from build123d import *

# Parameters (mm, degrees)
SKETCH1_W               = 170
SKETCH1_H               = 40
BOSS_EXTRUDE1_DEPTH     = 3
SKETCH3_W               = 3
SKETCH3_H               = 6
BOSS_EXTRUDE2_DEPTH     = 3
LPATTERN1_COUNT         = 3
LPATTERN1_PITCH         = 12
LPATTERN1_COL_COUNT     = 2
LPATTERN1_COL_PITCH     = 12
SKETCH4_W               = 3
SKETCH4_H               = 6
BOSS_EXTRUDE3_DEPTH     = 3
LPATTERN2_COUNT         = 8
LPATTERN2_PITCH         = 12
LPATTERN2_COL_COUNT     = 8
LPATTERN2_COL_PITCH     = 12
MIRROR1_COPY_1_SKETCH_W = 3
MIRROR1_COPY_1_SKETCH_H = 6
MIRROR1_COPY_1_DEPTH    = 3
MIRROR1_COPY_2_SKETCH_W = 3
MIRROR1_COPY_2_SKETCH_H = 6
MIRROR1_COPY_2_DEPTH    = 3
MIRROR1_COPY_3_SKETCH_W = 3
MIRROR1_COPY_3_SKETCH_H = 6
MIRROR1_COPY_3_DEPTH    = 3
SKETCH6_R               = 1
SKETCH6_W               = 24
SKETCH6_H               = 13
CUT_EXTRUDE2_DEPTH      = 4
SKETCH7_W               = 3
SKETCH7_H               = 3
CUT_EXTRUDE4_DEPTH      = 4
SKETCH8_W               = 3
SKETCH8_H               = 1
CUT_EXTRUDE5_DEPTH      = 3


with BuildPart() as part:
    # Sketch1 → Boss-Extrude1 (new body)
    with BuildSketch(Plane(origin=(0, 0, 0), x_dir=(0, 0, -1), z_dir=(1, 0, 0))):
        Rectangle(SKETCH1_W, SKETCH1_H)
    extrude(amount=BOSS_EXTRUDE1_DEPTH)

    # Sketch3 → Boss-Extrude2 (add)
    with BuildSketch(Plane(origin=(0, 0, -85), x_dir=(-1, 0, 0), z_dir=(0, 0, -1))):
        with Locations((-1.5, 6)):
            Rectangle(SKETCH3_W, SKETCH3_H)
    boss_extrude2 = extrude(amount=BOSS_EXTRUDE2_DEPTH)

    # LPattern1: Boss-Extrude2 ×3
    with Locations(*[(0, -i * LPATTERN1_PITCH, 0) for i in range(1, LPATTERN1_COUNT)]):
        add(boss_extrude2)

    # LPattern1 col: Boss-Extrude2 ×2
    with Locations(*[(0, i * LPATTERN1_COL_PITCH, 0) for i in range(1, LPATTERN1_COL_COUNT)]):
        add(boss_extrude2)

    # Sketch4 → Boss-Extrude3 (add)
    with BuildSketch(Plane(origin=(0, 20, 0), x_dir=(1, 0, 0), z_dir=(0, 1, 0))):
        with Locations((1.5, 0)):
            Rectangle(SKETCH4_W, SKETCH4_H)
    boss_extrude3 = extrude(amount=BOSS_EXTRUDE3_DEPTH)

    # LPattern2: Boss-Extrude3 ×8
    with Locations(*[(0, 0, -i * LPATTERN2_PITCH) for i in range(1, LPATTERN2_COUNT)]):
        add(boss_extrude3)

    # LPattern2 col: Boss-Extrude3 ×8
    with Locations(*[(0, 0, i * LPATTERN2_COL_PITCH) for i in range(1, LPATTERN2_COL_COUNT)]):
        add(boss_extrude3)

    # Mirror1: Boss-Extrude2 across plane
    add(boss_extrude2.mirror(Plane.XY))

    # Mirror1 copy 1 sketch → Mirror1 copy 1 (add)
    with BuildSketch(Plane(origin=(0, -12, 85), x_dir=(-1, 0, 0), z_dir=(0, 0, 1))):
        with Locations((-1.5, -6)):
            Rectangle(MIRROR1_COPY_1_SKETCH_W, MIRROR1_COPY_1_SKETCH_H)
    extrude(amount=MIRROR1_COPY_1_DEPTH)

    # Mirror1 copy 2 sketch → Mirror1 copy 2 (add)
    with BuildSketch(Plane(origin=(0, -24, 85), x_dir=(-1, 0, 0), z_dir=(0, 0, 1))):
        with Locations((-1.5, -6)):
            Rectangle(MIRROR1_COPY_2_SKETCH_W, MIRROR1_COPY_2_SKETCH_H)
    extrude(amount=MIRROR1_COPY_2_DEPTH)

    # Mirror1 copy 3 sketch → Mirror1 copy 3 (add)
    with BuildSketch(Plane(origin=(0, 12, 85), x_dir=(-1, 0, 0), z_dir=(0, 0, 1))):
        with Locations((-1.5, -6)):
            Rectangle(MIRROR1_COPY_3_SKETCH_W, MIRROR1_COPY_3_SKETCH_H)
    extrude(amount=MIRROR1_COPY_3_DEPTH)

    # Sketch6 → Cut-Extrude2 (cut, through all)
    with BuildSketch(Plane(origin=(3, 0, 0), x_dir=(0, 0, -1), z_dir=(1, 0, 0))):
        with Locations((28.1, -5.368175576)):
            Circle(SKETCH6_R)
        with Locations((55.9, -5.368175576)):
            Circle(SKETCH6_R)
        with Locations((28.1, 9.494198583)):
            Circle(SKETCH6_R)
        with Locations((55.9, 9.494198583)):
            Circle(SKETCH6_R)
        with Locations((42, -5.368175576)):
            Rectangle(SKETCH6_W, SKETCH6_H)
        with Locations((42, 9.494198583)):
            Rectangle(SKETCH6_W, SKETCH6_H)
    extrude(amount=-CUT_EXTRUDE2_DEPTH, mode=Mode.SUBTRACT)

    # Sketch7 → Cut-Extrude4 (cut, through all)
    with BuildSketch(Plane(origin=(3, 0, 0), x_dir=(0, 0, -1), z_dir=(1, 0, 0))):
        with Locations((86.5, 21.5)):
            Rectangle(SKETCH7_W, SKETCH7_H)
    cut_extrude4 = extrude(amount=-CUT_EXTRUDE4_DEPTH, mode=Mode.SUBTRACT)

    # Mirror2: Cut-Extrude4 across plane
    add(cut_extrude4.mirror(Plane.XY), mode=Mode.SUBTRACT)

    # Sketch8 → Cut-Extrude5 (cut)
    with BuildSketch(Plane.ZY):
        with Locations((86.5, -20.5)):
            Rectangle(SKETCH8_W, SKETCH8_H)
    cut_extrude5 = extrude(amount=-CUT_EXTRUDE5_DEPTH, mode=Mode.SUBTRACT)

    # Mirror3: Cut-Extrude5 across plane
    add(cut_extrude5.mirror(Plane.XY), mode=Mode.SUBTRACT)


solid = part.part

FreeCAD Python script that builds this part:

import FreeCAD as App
import Part
import Sketcher


def add_polygon(sketch, points):
    """Adds a closed chain of lines whose ends are joined by coincident constraints."""
    first, n = sketch.GeometryCount, len(points)
    for a, b in zip(points, points[1:] + points[:1]):
        sketch.addGeometry(Part.LineSegment(App.Vector(*a, 0), App.Vector(*b, 0)), False)
    for i in range(n):
        sketch.addConstraint(Sketcher.Constraint("Coincident", first + i, 2, first + (i + 1) % n, 1))

doc = App.newDocument("Part")
body = doc.addObject("PartDesign::Body", "Body")

sketch1 = body.newObject("Sketcher::SketchObject", "Sketch")
sketch1.AttachmentSupport = (doc.getObject("YZ_Plane"), [""])
sketch1.MapMode = "FlatFace"
add_polygon(sketch1, [(20, 85), (-20, 85), (-20, -85), (20, -85)])
sketch1.addConstraint(Sketcher.Constraint("Horizontal", 0))
sketch1.addConstraint(Sketcher.Constraint("Vertical", 1))
sketch1.addConstraint(Sketcher.Constraint("Horizontal", 2))
sketch1.addConstraint(Sketcher.Constraint("Vertical", 3))
sketch1.addConstraint(Sketcher.Constraint("Symmetric", 0, 2, 2, 2, -1, 1))
sketch1.addConstraint(Sketcher.Constraint("DistanceX", 0, 2, 0, 1, 40.0))
sketch1.addConstraint(Sketcher.Constraint("DistanceY", 1, 2, 1, 1, 170.0))
pad1 = body.newObject("PartDesign::Pad", "Pad")
pad1.Profile = sketch1
pad1.Length = 3

sketch2 = body.newObject("Sketcher::SketchObject", "Sketch001")
sketch2.AttachmentSupport = (doc.getObject("XY_Plane"), [""])
sketch2.MapMode = "FlatFace"
sketch2.AttachmentOffset = App.Placement(App.Vector(0, 0, -85), App.Rotation())
add_polygon(sketch2, [(3, 9), (3, 3), (0, 3), (0, 9)])
sketch2.addConstraint(Sketcher.Constraint("Vertical", 0))
sketch2.addConstraint(Sketcher.Constraint("Horizontal", 1))
sketch2.addConstraint(Sketcher.Constraint("Vertical", 2))
sketch2.addConstraint(Sketcher.Constraint("Horizontal", 3))
sketch2.addConstraint(Sketcher.Constraint("PointOnObject", 1, 2, -2))
sketch2.addConstraint(Sketcher.Constraint("DistanceX", 1, 2, 1, 1, 3.0))
sketch2.addConstraint(Sketcher.Constraint("DistanceY", 0, 2, 0, 1, 6.0))
sketch2.addConstraint(Sketcher.Constraint("DistanceY", -1, 1, 0, 2, 3.0))
pad2 = body.newObject("PartDesign::Pad", "Pad001")
pad2.Profile = sketch2
pad2.Length = 3
pad2.Reversed = True
doc.recompute()

linearpattern = body.newObject("PartDesign::LinearPattern", "LinearPattern")
linearpattern.Originals = [pad2]
linearpattern.Direction = (doc.getObject("Y_Axis"), [""])
linearpattern.Mode = "offset"
linearpattern.Offset = 12
linearpattern.Occurrences = 3
linearpattern.Reversed = True
body.Tip = linearpattern
doc.recompute()

linearpattern2 = body.newObject("PartDesign::LinearPattern", "LinearPattern001")
linearpattern2.Originals = [pad2]
linearpattern2.Direction = (doc.getObject("Y_Axis"), [""])
linearpattern2.Mode = "offset"
linearpattern2.Offset = 12
linearpattern2.Occurrences = 2
body.Tip = linearpattern2

sketch3 = body.newObject("Sketcher::SketchObject", "Sketch002")
sketch3.AttachmentSupport = (doc.getObject("XZ_Plane"), [""])
sketch3.MapMode = "FlatFace"
sketch3.AttachmentOffset = App.Placement(App.Vector(0, 0, -20), App.Rotation())
add_polygon(sketch3, [(0, -3), (0, 3), (3, 3), (3, -3)])
sketch3.addConstraint(Sketcher.Constraint("Vertical", 0))
sketch3.addConstraint(Sketcher.Constraint("Horizontal", 1))
sketch3.addConstraint(Sketcher.Constraint("Vertical", 2))
sketch3.addConstraint(Sketcher.Constraint("Horizontal", 3))
sketch3.addConstraint(Sketcher.Constraint("Symmetric", 0, 2, 3, 2, -1, 1))
sketch3.addConstraint(Sketcher.Constraint("DistanceX", 1, 1, 1, 2, 3.0))
sketch3.addConstraint(Sketcher.Constraint("DistanceY", 0, 1, 0, 2, 6.0))
pad3 = body.newObject("PartDesign::Pad", "Pad002")
pad3.Profile = sketch3
pad3.Length = 3
pad3.Reversed = True
doc.recompute()

linearpattern3 = body.newObject("PartDesign::LinearPattern", "LinearPattern002")
linearpattern3.Originals = [pad3]
linearpattern3.Direction = (doc.getObject("Z_Axis"), [""])
linearpattern3.Mode = "offset"
linearpattern3.Offset = 12
linearpattern3.Occurrences = 8
linearpattern3.Reversed = True
body.Tip = linearpattern3
doc.recompute()

linearpattern4 = body.newObject("PartDesign::LinearPattern", "LinearPattern003")
linearpattern4.Originals = [pad3]
linearpattern4.Direction = (doc.getObject("Z_Axis"), [""])
linearpattern4.Mode = "offset"
linearpattern4.Offset = 12
linearpattern4.Occurrences = 8
body.Tip = linearpattern4
doc.recompute()

mirrored = body.newObject("PartDesign::Mirrored", "Mirrored")
mirrored.Originals = [pad2]
mirrored.MirrorPlane = (doc.getObject("XY_Plane"), [""])
body.Tip = mirrored

sketch4 = body.newObject("Sketcher::SketchObject", "Sketch003")
sketch4.AttachmentSupport = (doc.getObject("XY_Plane"), [""])
sketch4.MapMode = "FlatFace"
sketch4.AttachmentOffset = App.Placement(App.Vector(0, 0, 85), App.Rotation())
add_polygon(sketch4, [(3, -9), (3, -3), (0, -3), (0, -9)])
sketch4.addConstraint(Sketcher.Constraint("Vertical", 0))
sketch4.addConstraint(Sketcher.Constraint("Horizontal", 1))
sketch4.addConstraint(Sketcher.Constraint("Vertical", 2))
sketch4.addConstraint(Sketcher.Constraint("Horizontal", 3))
sketch4.addConstraint(Sketcher.Constraint("PointOnObject", 1, 2, -2))
sketch4.addConstraint(Sketcher.Constraint("DistanceX", 1, 2, 1, 1, 3.0))
sketch4.addConstraint(Sketcher.Constraint("DistanceY", 0, 1, 0, 2, 6.0))
sketch4.addConstraint(Sketcher.Constraint("DistanceY", 0, 2, -1, 1, 3.0))
pad4 = body.newObject("PartDesign::Pad", "Pad003")
pad4.Profile = sketch4
pad4.Length = 3

sketch5 = body.newObject("Sketcher::SketchObject", "Sketch004")
sketch5.AttachmentSupport = (doc.getObject("XY_Plane"), [""])
sketch5.MapMode = "FlatFace"
sketch5.AttachmentOffset = App.Placement(App.Vector(0, 0, 85), App.Rotation())
add_polygon(sketch5, [(3, -21), (3, -15), (0, -15), (0, -21)])
sketch5.addConstraint(Sketcher.Constraint("Vertical", 0))
sketch5.addConstraint(Sketcher.Constraint("Horizontal", 1))
sketch5.addConstraint(Sketcher.Constraint("Vertical", 2))
sketch5.addConstraint(Sketcher.Constraint("Horizontal", 3))
sketch5.addConstraint(Sketcher.Constraint("PointOnObject", 1, 2, -2))
sketch5.addConstraint(Sketcher.Constraint("DistanceX", 1, 2, 1, 1, 3.0))
sketch5.addConstraint(Sketcher.Constraint("DistanceY", 0, 1, 0, 2, 6.0))
sketch5.addConstraint(Sketcher.Constraint("DistanceY", 0, 2, -1, 1, 15.0))
pad5 = body.newObject("PartDesign::Pad", "Pad004")
pad5.Profile = sketch5
pad5.Length = 3

sketch6 = body.newObject("Sketcher::SketchObject", "Sketch005")
sketch6.AttachmentSupport = (doc.getObject("XY_Plane"), [""])
sketch6.MapMode = "FlatFace"
sketch6.AttachmentOffset = App.Placement(App.Vector(0, 0, 85), App.Rotation())
add_polygon(sketch6, [(3, 15), (3, 21), (0, 21), (0, 15)])
sketch6.addConstraint(Sketcher.Constraint("Vertical", 0))
sketch6.addConstraint(Sketcher.Constraint("Horizontal", 1))
sketch6.addConstraint(Sketcher.Constraint("Vertical", 2))
sketch6.addConstraint(Sketcher.Constraint("Horizontal", 3))
sketch6.addConstraint(Sketcher.Constraint("PointOnObject", 1, 2, -2))
sketch6.addConstraint(Sketcher.Constraint("DistanceX", 1, 2, 1, 1, 3.0))
sketch6.addConstraint(Sketcher.Constraint("DistanceY", 0, 1, 0, 2, 6.0))
sketch6.addConstraint(Sketcher.Constraint("DistanceY", -1, 1, 0, 2, 21.0))
pad6 = body.newObject("PartDesign::Pad", "Pad005")
pad6.Profile = sketch6
pad6.Length = 3

sketch7 = body.newObject("Sketcher::SketchObject", "Sketch006")
sketch7.AttachmentSupport = (doc.getObject("YZ_Plane"), [""])
sketch7.MapMode = "FlatFace"
sketch7.AttachmentOffset = App.Placement(App.Vector(0, 0, 3), App.Rotation())
sketch7.addGeometry(Part.Circle(App.Vector(-5.368176, -28.1, 0), App.Vector(0, 0, 1), 1), False)
sketch7.addGeometry(Part.Circle(App.Vector(-5.368176, -55.9, 0), App.Vector(0, 0, 1), 1), False)
sketch7.addGeometry(Part.Circle(App.Vector(9.494199, -28.1, 0), App.Vector(0, 0, 1), 1), False)
sketch7.addGeometry(Part.Circle(App.Vector(9.494199, -55.9, 0), App.Vector(0, 0, 1), 1), False)
add_polygon(sketch7, [(1.131824, -30), (-11.868176, -30), (-11.868176, -54), (1.131824, -54)])
add_polygon(sketch7, [(15.994199, -30), (2.994199, -30), (2.994199, -54), (15.994199, -54)])
sketch7.addConstraint(Sketcher.Constraint("Horizontal", 4))
sketch7.addConstraint(Sketcher.Constraint("Vertical", 5))
sketch7.addConstraint(Sketcher.Constraint("Horizontal", 6))
sketch7.addConstraint(Sketcher.Constraint("Vertical", 7))
sketch7.addConstraint(Sketcher.Constraint("Horizontal", 8))
sketch7.addConstraint(Sketcher.Constraint("Vertical", 9))
sketch7.addConstraint(Sketcher.Constraint("Horizontal", 10))
sketch7.addConstraint(Sketcher.Constraint("Vertical", 11))
sketch7.addConstraint(Sketcher.Constraint("Equal", 0, 1))
sketch7.addConstraint(Sketcher.Constraint("Equal", 1, 2))
sketch7.addConstraint(Sketcher.Constraint("Equal", 2, 3))
sketch7.addConstraint(Sketcher.Constraint("Horizontal", 0, 3, 2, 3))
sketch7.addConstraint(Sketcher.Constraint("Horizontal", 1, 3, 3, 3))
sketch7.addConstraint(Sketcher.Constraint("Horizontal", 7, 2, 8, 2))
sketch7.addConstraint(Sketcher.Constraint("Horizontal", 6, 2, 9, 2))
sketch7.addConstraint(Sketcher.Constraint("Vertical", 0, 3, 1, 3))
sketch7.addConstraint(Sketcher.Constraint("Vertical", 2, 3, 3, 3))
sketch7.addConstraint(Sketcher.Constraint("Equal", 6, 8))
sketch7.addConstraint(Sketcher.Constraint("Diameter", 0, 2.0))
sketch7.addConstraint(Sketcher.Constraint("DistanceX", 4, 2, 4, 1, 13.0))
sketch7.addConstraint(Sketcher.Constraint("DistanceY", 5, 2, 5, 1, 24.0))
sketch7.addConstraint(Sketcher.Constraint("DistanceY", 4, 2, -1, 1, 30.0))
sketch7.addConstraint(Sketcher.Constraint("DistanceY", 0, 3, -1, 1, 28.1))
sketch7.addConstraint(Sketcher.Constraint("DistanceY", 1, 3, -1, 1, 55.9))
sketch7.addConstraint(Sketcher.Constraint("DistanceX", 4, 2, 0, 3, 6.5))
sketch7.addConstraint(Sketcher.Constraint("DistanceX", 8, 2, 2, 3, 6.5))
sketch7.addConstraint(Sketcher.Constraint("DistanceX", -1, 1, 2, 3, 9.494199))
sketch7.addConstraint(Sketcher.Constraint("DistanceX", 0, 3, -1, 1, 5.368176))
pocket1 = body.newObject("PartDesign::Pocket", "Pocket")
pocket1.Profile = sketch7
pocket1.Type = "ThroughAll"

sketch8 = body.newObject("Sketcher::SketchObject", "Sketch007")
sketch8.AttachmentSupport = (doc.getObject("YZ_Plane"), [""])
sketch8.MapMode = "FlatFace"
sketch8.AttachmentOffset = App.Placement(App.Vector(0, 0, 3), App.Rotation())
add_polygon(sketch8, [(23, -85), (20, -85), (20, -88), (23, -88)])
sketch8.addConstraint(Sketcher.Constraint("Horizontal", 0))
sketch8.addConstraint(Sketcher.Constraint("Vertical", 1))
sketch8.addConstraint(Sketcher.Constraint("Horizontal", 2))
sketch8.addConstraint(Sketcher.Constraint("Vertical", 3))
sketch8.addConstraint(Sketcher.Constraint("Equal", 2, 1))
sketch8.addConstraint(Sketcher.Constraint("DistanceX", 0, 2, 0, 1, 3.0))
sketch8.addConstraint(Sketcher.Constraint("DistanceX", -1, 1, 0, 2, 20.0))
sketch8.addConstraint(Sketcher.Constraint("DistanceY", 0, 2, -1, 1, 85.0))
pocket2 = body.newObject("PartDesign::Pocket", "Pocket001")
pocket2.Profile = sketch8
pocket2.Type = "ThroughAll"
doc.recompute()

mirrored2 = body.newObject("PartDesign::Mirrored", "Mirrored001")
mirrored2.Originals = [pocket2]
mirrored2.MirrorPlane = (doc.getObject("XY_Plane"), [""])
body.Tip = mirrored2

sketch9 = body.newObject("Sketcher::SketchObject", "Sketch008")
sketch9.AttachmentSupport = (doc.getObject("YZ_Plane"), [""])
sketch9.MapMode = "FlatFace"
add_polygon(sketch9, [(-20, 85), (-21, 85), (-21, 88), (-20, 88)])
sketch9.addConstraint(Sketcher.Constraint("Horizontal", 0))
sketch9.addConstraint(Sketcher.Constraint("Vertical", 1))
sketch9.addConstraint(Sketcher.Constraint("Horizontal", 2))
sketch9.addConstraint(Sketcher.Constraint("Vertical", 3))
sketch9.addConstraint(Sketcher.Constraint("DistanceX", 0, 2, 0, 1, 1.0))
sketch9.addConstraint(Sketcher.Constraint("DistanceY", 1, 1, 1, 2, 3.0))
sketch9.addConstraint(Sketcher.Constraint("DistanceX", 0, 2, -1, 1, 21.0))
sketch9.addConstraint(Sketcher.Constraint("DistanceY", -1, 1, 0, 2, 85.0))
pocket3 = body.newObject("PartDesign::Pocket", "Pocket002")
pocket3.Profile = sketch9
pocket3.Length = 3
pocket3.Reversed = True
doc.recompute()

mirrored3 = body.newObject("PartDesign::Mirrored", "Mirrored002")
mirrored3.Originals = [pocket3]
mirrored3.MirrorPlane = (doc.getObject("XY_Plane"), [""])
body.Tip = mirrored3

doc.recompute()
